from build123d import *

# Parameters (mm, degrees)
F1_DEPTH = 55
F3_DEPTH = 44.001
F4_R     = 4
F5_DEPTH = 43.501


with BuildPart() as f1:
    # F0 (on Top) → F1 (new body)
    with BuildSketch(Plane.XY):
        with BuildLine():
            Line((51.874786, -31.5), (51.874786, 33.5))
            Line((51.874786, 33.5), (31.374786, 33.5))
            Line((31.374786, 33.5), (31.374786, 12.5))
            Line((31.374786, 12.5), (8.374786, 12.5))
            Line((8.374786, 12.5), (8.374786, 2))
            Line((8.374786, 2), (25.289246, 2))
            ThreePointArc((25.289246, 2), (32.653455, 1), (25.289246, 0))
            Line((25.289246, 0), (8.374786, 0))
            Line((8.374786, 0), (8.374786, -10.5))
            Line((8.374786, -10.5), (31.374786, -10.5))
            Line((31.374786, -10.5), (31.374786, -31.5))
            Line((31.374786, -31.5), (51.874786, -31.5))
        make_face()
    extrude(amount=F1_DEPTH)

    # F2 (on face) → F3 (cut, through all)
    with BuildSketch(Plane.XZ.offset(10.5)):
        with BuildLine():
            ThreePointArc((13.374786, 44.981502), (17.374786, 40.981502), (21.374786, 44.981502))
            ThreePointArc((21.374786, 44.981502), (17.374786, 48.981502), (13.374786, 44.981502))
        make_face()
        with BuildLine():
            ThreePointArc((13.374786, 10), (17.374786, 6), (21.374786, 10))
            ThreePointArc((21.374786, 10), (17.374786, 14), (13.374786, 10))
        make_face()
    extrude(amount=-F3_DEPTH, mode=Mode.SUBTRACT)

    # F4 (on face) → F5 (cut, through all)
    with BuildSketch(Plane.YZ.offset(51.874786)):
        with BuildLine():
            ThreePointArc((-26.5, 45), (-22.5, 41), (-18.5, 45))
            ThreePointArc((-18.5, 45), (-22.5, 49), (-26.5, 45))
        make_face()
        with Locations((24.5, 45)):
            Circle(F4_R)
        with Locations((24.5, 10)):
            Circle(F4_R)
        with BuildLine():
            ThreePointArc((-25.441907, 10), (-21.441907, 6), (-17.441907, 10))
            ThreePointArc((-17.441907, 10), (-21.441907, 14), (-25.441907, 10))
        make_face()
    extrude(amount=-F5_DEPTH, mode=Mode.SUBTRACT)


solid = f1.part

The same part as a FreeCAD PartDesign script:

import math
import FreeCAD as App
import Part
import Sketcher
from FreeCAD import Vector
Q = App.Units.Quantity

doc = App.newDocument("Part")
body = doc.addObject("PartDesign::Body", "Body")

# Sketch on XY plane
sketch1 = body.newObject("Sketcher::SketchObject", "Sketch")
sketch1.AttachmentSupport = (doc.getObject("XY_Plane"), [""])
sketch1.MapMode = "FlatFace"
sketch1.addGeometry([
    Part.LineSegment(Vector(51.9, -31.5, 0), Vector(51.9, 33.5, 0)),  # 0
    Part.LineSegment(Vector(51.9, 33.5, 0), Vector(31.4, 33.5, 0)),  # 1
    Part.LineSegment(Vector(31.4, 33.5, 0), Vector(31.4, 12.5, 0)),  # 2
    Part.LineSegment(Vector(31.4, 12.5, 0), Vector(8.4, 12.5, 0)),  # 3
    Part.LineSegment(Vector(8.4, 12.5, 0), Vector(8.4, 2, 0)),  # 4
    Part.LineSegment(Vector(8.4, 2, 0), Vector(25.3, 2, 0)),  # 5
    Part.ArcOfCircle(Part.Circle(Vector(28.9, 1, 0), Vector(0, 0, 1), 3.8), math.radians(-165), math.radians(165)),  # 6
    Part.LineSegment(Vector(25.3, 0, 0), Vector(8.4, 0, 0)),  # 7
    Part.LineSegment(Vector(8.4, 0, 0), Vector(8.4, -10.5, 0)),  # 8
    Part.LineSegment(Vector(8.4, -10.5, 0), Vector(31.4, -10.5, 0)),  # 9
    Part.LineSegment(Vector(31.4, -10.5, 0), Vector(31.4, -31.5, 0)),  # 10
    Part.LineSegment(Vector(31.4, -31.5, 0), Vector(51.9, -31.5, 0)),  # 11
], False)
sketch1.addConstraint([
    Sketcher.Constraint("Coincident", 0, 2, 1, 1),
    Sketcher.Constraint("Coincident", 1, 2, 2, 1),
    Sketcher.Constraint("Coincident", 2, 2, 3, 1),
    Sketcher.Constraint("Coincident", 3, 2, 4, 1),
    Sketcher.Constraint("Coincident", 4, 2, 5, 1),
    Sketcher.Constraint("Coincident", 5, 2, 6, 2),
    Sketcher.Constraint("Coincident", 6, 1, 7, 1),
    Sketcher.Constraint("Coincident", 7, 2, 8, 1),
    Sketcher.Constraint("Coincident", 8, 2, 9, 1),
    Sketcher.Constraint("Coincident", 9, 2, 10, 1),
    Sketcher.Constraint("Coincident", 10, 2, 11, 1),
    Sketcher.Constraint("Coincident", 11, 2, 0, 1),
    Sketcher.Constraint("Vertical", 0),
    Sketcher.Constraint("Horizontal", 1),
    Sketcher.Constraint("Vertical", 2),
    Sketcher.Constraint("Horizontal", 3),
    Sketcher.Constraint("Vertical", 4),
    Sketcher.Constraint("Horizontal", 5),
    Sketcher.Constraint("Horizontal", 7),
    Sketcher.Constraint("Vertical", 8),
    Sketcher.Constraint("Horizontal", 9),
    Sketcher.Constraint("Vertical", 10),
    Sketcher.Constraint("Horizontal", 11),
    Sketcher.Constraint("PointOnObject", 6, 1, -1),
    Sketcher.Constraint("Vertical", 5, 2, 6, 1),
    Sketcher.Constraint("Vertical", 4, 2, 7, 2),
    Sketcher.Constraint("Vertical", 2, 2, 9, 2),
    Sketcher.Constraint("Equal", 4, 8),
    Sketcher.Constraint("Equal", 2, 10),
    Sketcher.Constraint("DistanceX", 3, 2, 3, 1, Q("23 mm")),
    Sketcher.Constraint("DistanceY", 0, 1, 0, 2, Q("65 mm")),
    Sketcher.Constraint("DistanceY", 2, 2, 2, 1, Q("21 mm")),
    Sketcher.Constraint("Radius", 6, Q("3.75 mm")),
    Sketcher.Constraint("DistanceX", 1, 2, 1, 1, Q("20.5 mm")),
    Sketcher.Constraint("DistanceY", 4, 2, 4, 1, Q("10.5 mm")),
    Sketcher.Constraint("DistanceX", 5, 1, 5, 2, Q("16.91446 mm")),
    Sketcher.Constraint("DistanceX", -1, 1, 6, 3, Q("28.903455 mm")),
])
pad1 = body.newObject("PartDesign::Pad", "Pad")
pad1.Profile = sketch1
pad1.Length = 55

# Sketch on XZ plane
sketch2 = body.newObject("Sketcher::SketchObject", "Sketch001")
sketch2.AttachmentSupport = (doc.getObject("XZ_Plane"), [""])
sketch2.MapMode = "FlatFace"
sketch2.AttachmentOffset = App.Placement(Vector(0, 0, 10.5), App.Rotation())
sketch2.addGeometry([
    Part.Circle(Vector(17.4, 45, 0), Vector(0, 0, 1), 4),
    Part.Circle(Vector(17.4, 10, 0), Vector(0, 0, 1), 4),
], False)
sketch2.addConstraint([
    Sketcher.Constraint("Equal", 0, 1),
    Sketcher.Constraint("Vertical", 0, 3, 1, 3),
    Sketcher.Constraint("Diameter", 0, Q("8 mm")),
    Sketcher.Constraint("DistanceY", -1, 1, 1, 3, Q("10 mm")),
    Sketcher.Constraint("DistanceX", -1, 1, 0, 3, Q("17.374786 mm")),
    Sketcher.Constraint("DistanceY", -1, 1, 0, 3, Q("44.981502 mm")),
])
pocket1 = body.newObject("PartDesign::Pocket", "Pocket")
pocket1.Profile = sketch2
pocket1.Type = "ThroughAll"

# Sketch on YZ plane
sketch3 = body.newObject("Sketcher::SketchObject", "Sketch002")
sketch3.AttachmentSupport = (doc.getObject("YZ_Plane"), [""])
sketch3.MapMode = "FlatFace"
sketch3.AttachmentOffset = App.Placement(Vector(0, 0, 51.874786), App.Rotation())
sketch3.addGeometry([
    Part.Circle(Vector(-22.5, 45, 0), Vector(0, 0, 1), 4),
    Part.Circle(Vector(24.5, 45, 0), Vector(0, 0, 1), 4),
    Part.Circle(Vector(24.5, 10, 0), Vector(0, 0, 1), 4),
    Part.Circle(Vector(-21.4, 10, 0), Vector(0, 0, 1), 4),
], False)
sketch3.addConstraint([
    Sketcher.Constraint("Equal", 0, 1),
    Sketcher.Constraint("Equal", 1, 2),
    Sketcher.Constraint("Equal", 2, 3),
    Sketcher.Constraint("Horizontal", 0, 3, 1, 3),
    Sketcher.Constraint("Horizontal", 2, 3, 3, 3),
    Sketcher.Constraint("Vertical", 1, 3, 2, 3),
    Sketcher.Constraint("Diameter", 0, Q("8 mm")),
    Sketcher.Constraint("DistanceY", -1, 1, 0, 3, Q("45 mm")),
    Sketcher.Constraint("DistanceY", -1, 1, 2, 3, Q("10 mm")),
    Sketcher.Constraint("DistanceX", 0, 3, 1, 3, Q("47 mm")),
    Sketcher.Constraint("DistanceX", 0, 3, -1, 1, Q("22.5 mm")),
    Sketcher.Constraint("DistanceX", 3, 3, -1, 1, Q("21.441907 mm")),
])
pocket2 = body.newObject("PartDesign::Pocket", "Pocket001")
pocket2.Profile = sketch3
pocket2.Type = "ThroughAll"

doc.recompute()
